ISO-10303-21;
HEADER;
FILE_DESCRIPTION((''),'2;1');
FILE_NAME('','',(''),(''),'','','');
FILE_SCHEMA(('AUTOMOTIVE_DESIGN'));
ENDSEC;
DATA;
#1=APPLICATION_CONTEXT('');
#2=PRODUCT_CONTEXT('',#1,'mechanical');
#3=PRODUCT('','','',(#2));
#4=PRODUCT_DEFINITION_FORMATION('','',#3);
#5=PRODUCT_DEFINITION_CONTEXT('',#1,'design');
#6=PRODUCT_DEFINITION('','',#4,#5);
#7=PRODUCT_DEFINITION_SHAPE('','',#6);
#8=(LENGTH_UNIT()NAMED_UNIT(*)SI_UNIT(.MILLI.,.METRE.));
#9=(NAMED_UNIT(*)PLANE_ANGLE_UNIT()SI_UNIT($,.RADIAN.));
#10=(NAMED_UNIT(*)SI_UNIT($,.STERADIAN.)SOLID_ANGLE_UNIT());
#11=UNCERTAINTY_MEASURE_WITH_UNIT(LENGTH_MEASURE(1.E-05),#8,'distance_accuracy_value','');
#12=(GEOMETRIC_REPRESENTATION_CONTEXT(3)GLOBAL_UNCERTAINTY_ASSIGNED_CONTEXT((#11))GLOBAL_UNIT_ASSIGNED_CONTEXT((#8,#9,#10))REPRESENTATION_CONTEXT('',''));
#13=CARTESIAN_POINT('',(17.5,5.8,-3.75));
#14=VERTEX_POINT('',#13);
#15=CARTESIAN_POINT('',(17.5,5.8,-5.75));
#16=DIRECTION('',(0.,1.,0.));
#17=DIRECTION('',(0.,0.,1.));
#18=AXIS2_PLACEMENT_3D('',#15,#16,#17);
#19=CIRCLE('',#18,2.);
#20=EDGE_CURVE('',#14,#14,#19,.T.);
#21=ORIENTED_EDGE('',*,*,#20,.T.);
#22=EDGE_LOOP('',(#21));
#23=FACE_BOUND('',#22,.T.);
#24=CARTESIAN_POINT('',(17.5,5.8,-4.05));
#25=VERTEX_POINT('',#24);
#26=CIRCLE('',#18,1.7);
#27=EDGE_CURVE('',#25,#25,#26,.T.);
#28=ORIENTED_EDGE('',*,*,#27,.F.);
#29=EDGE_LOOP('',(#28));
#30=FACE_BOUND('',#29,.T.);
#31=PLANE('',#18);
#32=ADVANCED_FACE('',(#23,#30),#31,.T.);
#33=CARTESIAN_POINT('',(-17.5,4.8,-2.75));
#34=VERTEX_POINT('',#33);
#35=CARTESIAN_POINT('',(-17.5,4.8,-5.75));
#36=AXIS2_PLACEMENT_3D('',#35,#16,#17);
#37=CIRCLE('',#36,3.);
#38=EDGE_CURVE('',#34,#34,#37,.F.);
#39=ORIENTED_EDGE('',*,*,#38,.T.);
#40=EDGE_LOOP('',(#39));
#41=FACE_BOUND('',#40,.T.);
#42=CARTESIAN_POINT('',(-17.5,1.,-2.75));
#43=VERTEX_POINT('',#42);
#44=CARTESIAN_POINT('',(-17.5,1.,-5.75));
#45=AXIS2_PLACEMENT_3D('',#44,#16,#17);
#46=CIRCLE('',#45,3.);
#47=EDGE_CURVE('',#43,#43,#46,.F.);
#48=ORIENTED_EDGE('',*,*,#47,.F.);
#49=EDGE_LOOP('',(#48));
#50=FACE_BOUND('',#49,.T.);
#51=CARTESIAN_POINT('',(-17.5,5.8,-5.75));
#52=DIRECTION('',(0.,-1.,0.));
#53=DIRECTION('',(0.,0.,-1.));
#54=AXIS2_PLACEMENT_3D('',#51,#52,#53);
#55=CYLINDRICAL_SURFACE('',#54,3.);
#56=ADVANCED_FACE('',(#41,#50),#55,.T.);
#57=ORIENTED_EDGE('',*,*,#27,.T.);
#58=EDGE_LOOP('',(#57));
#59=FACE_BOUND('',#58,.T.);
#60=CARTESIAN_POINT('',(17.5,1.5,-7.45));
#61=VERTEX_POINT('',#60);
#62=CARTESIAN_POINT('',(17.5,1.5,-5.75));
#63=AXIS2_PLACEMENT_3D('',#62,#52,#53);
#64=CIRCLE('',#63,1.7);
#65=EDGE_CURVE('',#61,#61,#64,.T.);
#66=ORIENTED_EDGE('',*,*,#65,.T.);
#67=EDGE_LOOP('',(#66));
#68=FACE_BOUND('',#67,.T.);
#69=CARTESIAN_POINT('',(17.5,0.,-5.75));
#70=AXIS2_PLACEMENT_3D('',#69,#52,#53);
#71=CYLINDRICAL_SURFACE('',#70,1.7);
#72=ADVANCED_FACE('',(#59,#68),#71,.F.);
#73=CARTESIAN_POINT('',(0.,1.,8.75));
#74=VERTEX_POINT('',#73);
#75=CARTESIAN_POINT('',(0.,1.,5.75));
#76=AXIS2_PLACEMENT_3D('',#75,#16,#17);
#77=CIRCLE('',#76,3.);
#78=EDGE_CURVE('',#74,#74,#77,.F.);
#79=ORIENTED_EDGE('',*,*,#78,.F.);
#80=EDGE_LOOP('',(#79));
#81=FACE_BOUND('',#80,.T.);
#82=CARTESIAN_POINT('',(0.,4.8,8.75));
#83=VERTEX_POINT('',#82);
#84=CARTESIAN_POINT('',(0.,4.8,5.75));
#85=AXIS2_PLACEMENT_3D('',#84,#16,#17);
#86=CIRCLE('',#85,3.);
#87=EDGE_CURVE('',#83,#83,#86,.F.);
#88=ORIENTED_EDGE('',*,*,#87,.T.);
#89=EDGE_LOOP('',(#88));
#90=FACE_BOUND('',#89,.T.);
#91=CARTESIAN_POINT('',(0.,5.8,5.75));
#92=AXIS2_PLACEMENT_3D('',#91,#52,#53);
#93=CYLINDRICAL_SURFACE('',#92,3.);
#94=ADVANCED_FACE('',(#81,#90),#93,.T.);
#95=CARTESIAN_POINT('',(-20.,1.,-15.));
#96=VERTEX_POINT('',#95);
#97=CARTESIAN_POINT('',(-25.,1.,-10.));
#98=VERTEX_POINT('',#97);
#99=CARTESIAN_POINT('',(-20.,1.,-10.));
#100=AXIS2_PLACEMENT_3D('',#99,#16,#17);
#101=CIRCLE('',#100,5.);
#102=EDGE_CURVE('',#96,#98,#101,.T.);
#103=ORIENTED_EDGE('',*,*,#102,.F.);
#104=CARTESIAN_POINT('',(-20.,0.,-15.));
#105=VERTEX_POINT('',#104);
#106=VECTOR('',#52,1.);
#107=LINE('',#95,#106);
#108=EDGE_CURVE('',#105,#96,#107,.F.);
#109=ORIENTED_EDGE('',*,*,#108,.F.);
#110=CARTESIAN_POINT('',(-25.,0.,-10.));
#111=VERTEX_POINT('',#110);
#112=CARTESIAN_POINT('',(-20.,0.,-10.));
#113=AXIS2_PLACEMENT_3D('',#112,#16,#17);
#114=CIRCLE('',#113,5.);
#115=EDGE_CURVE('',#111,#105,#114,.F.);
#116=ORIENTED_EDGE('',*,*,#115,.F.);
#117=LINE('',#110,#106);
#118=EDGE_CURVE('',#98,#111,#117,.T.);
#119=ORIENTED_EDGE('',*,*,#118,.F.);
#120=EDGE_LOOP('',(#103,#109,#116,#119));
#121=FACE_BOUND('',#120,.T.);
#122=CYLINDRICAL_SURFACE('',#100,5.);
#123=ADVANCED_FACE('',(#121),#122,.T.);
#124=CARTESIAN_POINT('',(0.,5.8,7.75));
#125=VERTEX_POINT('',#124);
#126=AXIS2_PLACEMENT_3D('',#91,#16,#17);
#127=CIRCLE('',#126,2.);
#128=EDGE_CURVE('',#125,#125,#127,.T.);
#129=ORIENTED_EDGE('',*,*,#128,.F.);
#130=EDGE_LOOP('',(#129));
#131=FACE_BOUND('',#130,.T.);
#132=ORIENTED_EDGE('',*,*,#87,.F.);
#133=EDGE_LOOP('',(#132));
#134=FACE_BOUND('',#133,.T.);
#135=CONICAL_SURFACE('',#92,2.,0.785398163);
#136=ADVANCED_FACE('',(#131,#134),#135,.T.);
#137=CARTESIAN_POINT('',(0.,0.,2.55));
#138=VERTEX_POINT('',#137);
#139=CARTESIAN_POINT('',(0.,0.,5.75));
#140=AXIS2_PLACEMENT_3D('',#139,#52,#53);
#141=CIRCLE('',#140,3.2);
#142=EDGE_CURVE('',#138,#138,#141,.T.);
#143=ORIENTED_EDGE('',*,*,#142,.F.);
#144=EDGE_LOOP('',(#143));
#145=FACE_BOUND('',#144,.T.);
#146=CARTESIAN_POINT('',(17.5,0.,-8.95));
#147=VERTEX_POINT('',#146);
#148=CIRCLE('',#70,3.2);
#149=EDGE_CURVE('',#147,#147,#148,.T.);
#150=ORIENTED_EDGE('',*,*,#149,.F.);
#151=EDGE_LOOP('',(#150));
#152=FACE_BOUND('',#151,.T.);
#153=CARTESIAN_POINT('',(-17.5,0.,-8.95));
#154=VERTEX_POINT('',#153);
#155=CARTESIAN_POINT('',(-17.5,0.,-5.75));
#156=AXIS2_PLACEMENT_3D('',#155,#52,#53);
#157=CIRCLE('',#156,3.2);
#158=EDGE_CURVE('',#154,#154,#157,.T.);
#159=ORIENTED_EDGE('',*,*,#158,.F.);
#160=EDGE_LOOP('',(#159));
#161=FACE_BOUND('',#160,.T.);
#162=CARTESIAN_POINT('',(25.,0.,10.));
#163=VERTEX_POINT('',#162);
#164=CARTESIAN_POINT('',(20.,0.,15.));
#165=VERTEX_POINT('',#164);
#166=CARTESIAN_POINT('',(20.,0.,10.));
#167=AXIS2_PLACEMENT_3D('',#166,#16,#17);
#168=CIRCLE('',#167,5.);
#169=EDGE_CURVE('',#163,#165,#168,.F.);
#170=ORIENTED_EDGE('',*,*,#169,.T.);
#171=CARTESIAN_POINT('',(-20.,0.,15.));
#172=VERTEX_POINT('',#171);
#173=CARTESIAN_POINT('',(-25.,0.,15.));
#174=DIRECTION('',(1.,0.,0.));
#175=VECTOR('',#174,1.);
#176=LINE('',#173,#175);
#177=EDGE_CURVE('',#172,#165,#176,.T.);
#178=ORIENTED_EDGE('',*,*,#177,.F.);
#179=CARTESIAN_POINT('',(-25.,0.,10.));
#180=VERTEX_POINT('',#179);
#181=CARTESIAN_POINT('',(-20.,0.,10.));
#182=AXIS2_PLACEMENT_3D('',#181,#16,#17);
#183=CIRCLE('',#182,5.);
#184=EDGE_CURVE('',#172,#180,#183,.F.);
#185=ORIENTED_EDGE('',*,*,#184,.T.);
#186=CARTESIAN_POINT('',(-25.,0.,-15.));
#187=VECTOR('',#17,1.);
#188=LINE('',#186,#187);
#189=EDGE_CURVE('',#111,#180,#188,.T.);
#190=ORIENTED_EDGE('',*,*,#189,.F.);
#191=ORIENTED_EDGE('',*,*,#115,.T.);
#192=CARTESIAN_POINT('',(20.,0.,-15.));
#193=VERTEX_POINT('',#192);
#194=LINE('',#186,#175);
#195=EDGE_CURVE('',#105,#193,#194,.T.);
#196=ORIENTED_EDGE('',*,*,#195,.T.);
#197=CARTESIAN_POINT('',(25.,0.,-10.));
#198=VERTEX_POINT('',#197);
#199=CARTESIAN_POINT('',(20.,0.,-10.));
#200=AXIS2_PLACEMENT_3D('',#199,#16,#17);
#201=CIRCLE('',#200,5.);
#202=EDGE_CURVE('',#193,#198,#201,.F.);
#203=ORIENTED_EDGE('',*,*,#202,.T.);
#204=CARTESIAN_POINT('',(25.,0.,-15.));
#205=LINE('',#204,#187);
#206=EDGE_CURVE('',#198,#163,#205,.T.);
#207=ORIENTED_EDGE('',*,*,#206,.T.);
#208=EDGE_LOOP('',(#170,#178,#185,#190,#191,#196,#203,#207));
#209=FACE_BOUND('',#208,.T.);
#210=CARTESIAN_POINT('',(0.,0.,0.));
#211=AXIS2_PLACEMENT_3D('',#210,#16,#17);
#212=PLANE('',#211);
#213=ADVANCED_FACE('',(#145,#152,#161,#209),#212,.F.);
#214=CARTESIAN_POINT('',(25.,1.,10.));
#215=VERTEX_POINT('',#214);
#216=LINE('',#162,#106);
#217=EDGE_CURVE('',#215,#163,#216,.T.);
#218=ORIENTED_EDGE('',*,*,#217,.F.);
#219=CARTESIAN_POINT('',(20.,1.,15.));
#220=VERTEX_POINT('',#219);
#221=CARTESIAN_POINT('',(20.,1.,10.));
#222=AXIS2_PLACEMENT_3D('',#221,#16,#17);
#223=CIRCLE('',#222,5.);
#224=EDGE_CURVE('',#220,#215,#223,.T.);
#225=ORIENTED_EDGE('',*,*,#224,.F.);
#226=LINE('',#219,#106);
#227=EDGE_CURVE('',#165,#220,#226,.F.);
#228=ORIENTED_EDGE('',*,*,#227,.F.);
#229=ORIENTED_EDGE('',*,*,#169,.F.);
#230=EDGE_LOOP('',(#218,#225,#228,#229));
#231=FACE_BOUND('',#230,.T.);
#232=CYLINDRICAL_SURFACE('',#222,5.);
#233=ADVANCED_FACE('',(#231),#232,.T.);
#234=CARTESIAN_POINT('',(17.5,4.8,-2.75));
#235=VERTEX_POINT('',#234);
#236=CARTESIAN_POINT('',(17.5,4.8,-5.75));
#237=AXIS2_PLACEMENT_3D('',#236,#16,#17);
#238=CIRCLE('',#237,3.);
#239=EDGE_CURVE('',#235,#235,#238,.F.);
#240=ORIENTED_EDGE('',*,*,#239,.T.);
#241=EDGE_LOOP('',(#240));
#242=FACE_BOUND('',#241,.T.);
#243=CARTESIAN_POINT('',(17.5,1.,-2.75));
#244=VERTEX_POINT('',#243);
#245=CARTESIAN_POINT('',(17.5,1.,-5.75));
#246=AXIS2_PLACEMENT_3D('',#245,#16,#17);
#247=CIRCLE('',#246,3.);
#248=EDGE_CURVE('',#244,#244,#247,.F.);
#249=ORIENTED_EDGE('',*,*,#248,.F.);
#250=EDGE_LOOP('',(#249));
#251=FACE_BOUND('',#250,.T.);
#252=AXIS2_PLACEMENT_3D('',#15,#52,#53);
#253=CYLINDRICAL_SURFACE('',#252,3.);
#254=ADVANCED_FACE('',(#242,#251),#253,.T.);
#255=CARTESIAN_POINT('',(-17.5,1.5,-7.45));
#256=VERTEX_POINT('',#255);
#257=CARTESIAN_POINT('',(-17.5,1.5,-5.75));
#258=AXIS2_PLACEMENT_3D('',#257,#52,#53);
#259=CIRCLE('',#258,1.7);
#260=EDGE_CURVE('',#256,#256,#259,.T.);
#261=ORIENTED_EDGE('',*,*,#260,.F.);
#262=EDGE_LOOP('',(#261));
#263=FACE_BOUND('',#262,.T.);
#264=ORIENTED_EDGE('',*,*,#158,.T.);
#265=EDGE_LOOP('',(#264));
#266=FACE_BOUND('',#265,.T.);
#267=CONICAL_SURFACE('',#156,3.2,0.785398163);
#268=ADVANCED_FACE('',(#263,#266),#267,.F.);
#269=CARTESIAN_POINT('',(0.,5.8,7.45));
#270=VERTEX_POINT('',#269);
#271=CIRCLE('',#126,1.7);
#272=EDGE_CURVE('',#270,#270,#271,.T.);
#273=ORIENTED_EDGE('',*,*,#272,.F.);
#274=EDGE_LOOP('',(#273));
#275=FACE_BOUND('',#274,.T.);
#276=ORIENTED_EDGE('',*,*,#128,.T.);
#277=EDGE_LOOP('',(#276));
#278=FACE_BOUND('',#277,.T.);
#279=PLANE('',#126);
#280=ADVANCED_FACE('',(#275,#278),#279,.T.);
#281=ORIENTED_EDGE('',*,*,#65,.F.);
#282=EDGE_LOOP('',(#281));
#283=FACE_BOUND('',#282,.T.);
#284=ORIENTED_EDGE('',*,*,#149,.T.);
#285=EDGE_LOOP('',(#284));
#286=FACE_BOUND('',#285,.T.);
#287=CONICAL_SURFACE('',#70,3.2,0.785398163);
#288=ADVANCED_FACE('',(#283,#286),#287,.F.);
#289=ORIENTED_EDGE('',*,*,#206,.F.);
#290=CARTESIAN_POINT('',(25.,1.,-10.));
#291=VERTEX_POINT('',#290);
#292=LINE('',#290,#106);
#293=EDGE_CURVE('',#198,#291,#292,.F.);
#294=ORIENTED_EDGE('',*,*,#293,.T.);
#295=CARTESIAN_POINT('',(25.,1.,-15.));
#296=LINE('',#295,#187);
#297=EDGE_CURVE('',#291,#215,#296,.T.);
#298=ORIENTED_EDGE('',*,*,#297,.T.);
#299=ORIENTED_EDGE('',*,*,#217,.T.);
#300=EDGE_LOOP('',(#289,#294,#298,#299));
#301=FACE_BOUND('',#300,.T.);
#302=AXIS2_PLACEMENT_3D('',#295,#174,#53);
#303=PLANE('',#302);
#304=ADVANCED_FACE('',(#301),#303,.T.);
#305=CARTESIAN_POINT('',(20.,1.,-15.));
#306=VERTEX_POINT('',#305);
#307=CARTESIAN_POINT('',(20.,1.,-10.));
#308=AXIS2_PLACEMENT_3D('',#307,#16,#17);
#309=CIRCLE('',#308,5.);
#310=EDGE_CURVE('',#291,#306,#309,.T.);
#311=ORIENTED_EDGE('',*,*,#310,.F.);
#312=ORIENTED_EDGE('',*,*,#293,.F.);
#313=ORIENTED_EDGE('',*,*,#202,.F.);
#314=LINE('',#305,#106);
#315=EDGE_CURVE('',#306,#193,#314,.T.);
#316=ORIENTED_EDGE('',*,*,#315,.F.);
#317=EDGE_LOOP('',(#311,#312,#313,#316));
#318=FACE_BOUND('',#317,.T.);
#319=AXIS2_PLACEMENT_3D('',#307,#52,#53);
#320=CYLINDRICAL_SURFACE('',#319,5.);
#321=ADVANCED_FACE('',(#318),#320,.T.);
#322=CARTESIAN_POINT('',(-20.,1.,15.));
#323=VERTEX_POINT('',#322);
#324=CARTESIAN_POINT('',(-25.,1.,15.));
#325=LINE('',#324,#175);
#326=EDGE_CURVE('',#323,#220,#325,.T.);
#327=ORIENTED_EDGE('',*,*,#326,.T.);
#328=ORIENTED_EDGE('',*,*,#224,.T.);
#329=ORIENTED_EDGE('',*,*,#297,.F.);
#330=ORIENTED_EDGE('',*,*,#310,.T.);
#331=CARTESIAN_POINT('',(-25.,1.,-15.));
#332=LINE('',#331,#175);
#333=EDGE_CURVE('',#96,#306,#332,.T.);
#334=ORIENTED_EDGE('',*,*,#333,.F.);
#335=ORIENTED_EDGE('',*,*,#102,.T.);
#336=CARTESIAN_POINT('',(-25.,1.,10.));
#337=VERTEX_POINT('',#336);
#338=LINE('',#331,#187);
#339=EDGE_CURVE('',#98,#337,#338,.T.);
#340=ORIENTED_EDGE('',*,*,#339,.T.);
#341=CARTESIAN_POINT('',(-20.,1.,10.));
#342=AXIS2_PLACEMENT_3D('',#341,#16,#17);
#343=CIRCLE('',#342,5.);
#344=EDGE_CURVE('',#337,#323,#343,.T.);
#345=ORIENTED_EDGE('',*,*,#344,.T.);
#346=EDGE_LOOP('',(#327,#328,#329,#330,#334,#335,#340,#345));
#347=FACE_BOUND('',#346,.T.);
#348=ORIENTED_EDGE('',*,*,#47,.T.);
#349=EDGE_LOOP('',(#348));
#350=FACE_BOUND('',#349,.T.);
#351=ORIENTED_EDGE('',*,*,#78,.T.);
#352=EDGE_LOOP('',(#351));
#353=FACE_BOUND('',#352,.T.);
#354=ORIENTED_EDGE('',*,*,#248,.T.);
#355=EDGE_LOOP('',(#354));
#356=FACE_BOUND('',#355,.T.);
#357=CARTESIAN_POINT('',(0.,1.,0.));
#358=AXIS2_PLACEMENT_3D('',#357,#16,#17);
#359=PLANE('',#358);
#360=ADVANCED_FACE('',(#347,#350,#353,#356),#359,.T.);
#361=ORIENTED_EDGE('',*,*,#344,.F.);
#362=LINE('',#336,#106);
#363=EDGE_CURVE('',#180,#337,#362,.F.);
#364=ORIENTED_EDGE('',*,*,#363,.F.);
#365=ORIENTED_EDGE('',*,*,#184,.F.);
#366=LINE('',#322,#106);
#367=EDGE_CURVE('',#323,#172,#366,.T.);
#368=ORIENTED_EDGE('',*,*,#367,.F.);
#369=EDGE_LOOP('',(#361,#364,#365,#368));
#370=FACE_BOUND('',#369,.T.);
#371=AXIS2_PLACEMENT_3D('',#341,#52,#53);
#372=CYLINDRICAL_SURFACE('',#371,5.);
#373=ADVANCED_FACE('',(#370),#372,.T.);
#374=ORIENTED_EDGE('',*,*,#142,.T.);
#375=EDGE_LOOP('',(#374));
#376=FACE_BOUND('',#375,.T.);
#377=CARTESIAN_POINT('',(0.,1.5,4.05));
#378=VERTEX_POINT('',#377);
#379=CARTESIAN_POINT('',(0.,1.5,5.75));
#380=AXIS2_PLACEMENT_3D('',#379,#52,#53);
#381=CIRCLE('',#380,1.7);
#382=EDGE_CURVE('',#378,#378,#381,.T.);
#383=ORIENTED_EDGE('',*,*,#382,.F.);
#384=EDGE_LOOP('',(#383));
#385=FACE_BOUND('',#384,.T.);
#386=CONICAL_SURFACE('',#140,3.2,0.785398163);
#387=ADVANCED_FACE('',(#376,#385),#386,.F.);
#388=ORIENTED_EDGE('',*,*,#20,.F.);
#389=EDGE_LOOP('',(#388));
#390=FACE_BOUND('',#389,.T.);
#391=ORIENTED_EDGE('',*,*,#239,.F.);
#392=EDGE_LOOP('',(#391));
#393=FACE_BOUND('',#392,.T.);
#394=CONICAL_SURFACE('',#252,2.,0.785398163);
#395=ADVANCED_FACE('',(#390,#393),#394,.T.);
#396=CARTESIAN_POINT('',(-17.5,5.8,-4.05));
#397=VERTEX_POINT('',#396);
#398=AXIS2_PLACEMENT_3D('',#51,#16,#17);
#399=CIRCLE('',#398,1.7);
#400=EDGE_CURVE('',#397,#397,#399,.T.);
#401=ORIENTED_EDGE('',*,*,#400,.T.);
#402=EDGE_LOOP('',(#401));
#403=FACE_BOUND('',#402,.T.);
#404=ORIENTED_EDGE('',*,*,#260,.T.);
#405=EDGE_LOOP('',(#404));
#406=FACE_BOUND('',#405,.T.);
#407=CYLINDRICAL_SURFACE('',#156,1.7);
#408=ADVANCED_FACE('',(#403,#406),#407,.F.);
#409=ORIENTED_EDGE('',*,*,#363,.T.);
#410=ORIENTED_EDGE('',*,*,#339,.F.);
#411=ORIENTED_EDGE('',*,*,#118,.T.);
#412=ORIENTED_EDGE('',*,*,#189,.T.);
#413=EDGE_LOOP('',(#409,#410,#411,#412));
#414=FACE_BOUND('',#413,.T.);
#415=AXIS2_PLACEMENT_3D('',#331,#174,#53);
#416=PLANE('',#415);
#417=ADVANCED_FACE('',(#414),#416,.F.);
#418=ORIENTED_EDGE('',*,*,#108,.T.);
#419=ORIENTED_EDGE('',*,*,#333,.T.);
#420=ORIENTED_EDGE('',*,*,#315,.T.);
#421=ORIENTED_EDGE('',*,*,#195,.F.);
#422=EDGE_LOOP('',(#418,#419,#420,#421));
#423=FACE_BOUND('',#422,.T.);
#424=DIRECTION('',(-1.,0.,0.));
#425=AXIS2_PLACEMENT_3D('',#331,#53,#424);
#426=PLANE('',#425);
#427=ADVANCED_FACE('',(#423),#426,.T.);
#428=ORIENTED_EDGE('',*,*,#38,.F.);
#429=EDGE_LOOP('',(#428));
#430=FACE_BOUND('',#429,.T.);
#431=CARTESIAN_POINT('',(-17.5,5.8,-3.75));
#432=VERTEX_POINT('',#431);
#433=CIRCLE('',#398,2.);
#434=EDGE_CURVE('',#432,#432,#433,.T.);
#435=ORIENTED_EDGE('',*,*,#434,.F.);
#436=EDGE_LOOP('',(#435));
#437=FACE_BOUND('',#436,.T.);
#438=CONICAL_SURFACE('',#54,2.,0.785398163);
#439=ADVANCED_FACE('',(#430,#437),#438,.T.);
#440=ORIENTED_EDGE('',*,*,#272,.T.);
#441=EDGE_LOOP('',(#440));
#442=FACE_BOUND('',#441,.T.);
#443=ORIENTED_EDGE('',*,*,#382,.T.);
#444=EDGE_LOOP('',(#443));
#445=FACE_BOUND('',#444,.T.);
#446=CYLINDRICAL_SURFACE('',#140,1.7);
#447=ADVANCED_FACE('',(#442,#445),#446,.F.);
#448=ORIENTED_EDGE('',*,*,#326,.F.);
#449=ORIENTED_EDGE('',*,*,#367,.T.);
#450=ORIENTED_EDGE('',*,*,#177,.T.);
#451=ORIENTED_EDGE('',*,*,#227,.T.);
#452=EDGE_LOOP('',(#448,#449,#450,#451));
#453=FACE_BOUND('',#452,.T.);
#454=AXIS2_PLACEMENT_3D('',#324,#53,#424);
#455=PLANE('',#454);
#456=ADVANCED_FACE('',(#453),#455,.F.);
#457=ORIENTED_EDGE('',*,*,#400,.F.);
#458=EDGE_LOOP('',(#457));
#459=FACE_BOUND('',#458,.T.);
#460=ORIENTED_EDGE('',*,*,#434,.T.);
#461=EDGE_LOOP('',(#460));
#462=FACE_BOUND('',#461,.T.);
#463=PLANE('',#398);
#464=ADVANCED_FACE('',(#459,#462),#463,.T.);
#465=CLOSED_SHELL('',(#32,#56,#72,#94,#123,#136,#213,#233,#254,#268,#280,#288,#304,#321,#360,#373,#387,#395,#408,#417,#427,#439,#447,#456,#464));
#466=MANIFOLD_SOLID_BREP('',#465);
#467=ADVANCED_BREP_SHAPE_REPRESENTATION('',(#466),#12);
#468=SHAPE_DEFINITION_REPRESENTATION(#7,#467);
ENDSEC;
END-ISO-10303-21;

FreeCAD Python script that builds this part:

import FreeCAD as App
import Part
import Sketcher

V = App.Vector


def edges_at(feature, points):
    """Names of the edges that pass closest to the given points."""
    edges = feature.Shape.Edges
    near = lambda p: min(range(len(edges)), key=lambda i: edges[i].distToShape(Part.Vertex(*p))[0])
    return sorted({f"Edge{near(p) + 1}" for p in points})


def add_polygon(sketch, points):
    """Adds a closed chain of lines whose ends are joined by coincident constraints."""
    first, n = sketch.GeometryCount, len(points)
    for a, b in zip(points, points[1:] + points[:1]):
        sketch.addGeometry(Part.LineSegment(App.Vector(*a, 0), App.Vector(*b, 0)), False)
    for i in range(n):
        sketch.addConstraint(Sketcher.Constraint("Coincident", first + i, 2, first + (i + 1) % n, 1))

doc = App.newDocument("Part")
body = doc.addObject("PartDesign::Body", "Body")

# Sketch on XZ plane
sketch1 = body.newObject("Sketcher::SketchObject", "Sketch")
sketch1.AttachmentSupport = (doc.getObject("XZ_Plane"), [""])
sketch1.MapMode = "FlatFace"
add_polygon(sketch1, [(-25, -15), (-25, 15), (25, 15), (25, -15)])  # lines 0-3
sketch1.addConstraint([
    Sketcher.Constraint("Vertical", 0),
    Sketcher.Constraint("Horizontal", 1),
    Sketcher.Constraint("Vertical", 2),
    Sketcher.Constraint("Horizontal", 3),
    Sketcher.Constraint("Symmetric", 0, 2, 2, 2, -1, 1),
    Sketcher.Constraint("DistanceX", 1, 1, 1, 2, 50.0),
    Sketcher.Constraint("DistanceY", 0, 1, 0, 2, 30.0),
])
pad1 = body.newObject("PartDesign::Pad", "Pad")
pad1.Profile = sketch1
pad1.Length = 1
pad1.Reversed = True

# Sketch on XZ plane
sketch2 = body.newObject("Sketcher::SketchObject", "Sketch001")
sketch2.AttachmentSupport = (doc.getObject("XZ_Plane"), [""])
sketch2.MapMode = "FlatFace"
sketch2.addGeometry([
    Part.Circle(V(-17.5, -5.8, 0), V(0, 0, 1), 3),
    Part.Circle(V(17.5, -5.8, 0), V(0, 0, 1), 3),
    Part.Circle(V(0, 5.8, 0), V(0, 0, 1), 3),
], False)
sketch2.addConstraint([
    Sketcher.Constraint("Equal", 0, 1),
    Sketcher.Constraint("Equal", 1, 2),
    Sketcher.Constraint("Symmetric", 0, 3, 1, 3, -2),
    Sketcher.Constraint("PointOnObject", 2, 3, -2),
    Sketcher.Constraint("Diameter", 0, 6.0),
    Sketcher.Constraint("DistanceX", 0, 3, 1, 3, 35.0),
    Sketcher.Constraint("DistanceY", 0, 3, 2, 3, 11.5),
    Sketcher.Constraint("DistanceY", 0, 3, -1, 1, 5.75),
])
pad2 = body.newObject("PartDesign::Pad", "Pad001")
pad2.Profile = sketch2
pad2.Length = 5.8
pad2.Reversed = True

# Sketch on XZ plane
sketch3 = body.newObject("Sketcher::SketchObject", "Sketch002")
sketch3.AttachmentSupport = (doc.getObject("XZ_Plane"), [""])
sketch3.MapMode = "FlatFace"
sketch3.addGeometry([
    Part.Circle(V(17.5, -5.8, 0), V(0, 0, 1), 1.7),
    Part.Circle(V(0, 5.8, 0), V(0, 0, 1), 1.7),
    Part.Circle(V(-17.5, -5.8, 0), V(0, 0, 1), 1.7),
], False)
sketch3.addConstraint([
    Sketcher.Constraint("Equal", 0, 1),
    Sketcher.Constraint("Equal", 1, 2),
    Sketcher.Constraint("Symmetric", 0, 3, 2, 3, -2),
    Sketcher.Constraint("PointOnObject", 1, 3, -2),
    Sketcher.Constraint("Diameter", 0, 3.4),
    Sketcher.Constraint("DistanceX", 2, 3, 0, 3, 35.0),
    Sketcher.Constraint("DistanceY", 0, 3, 1, 3, 11.5),
    Sketcher.Constraint("DistanceY", 0, 3, -1, 1, 5.75),
])
doc.recompute()
hole = body.newObject("PartDesign::Hole", "Hole")
hole.Profile = sketch3
hole.ThreadType = "None"
hole.Diameter = 3.4
hole.DepthType = "Dimension"
hole.Depth = 7.5
hole.DrillPoint = "Angled"
hole.DrillPointAngle = 118
hole.HoleCutType = "Countersink"
hole.HoleCutDiameter = 6.4
hole.HoleCutCountersinkAngle = 90
doc.recompute()

chamfer = body.newObject("PartDesign::Chamfer", "Chamfer")
chamfer.Base = (hole, edges_at(hole, [(-17.5, 5.8, -8.75), (17.5, 5.8, -8.75), (0, 5.8, 2.75)]))
chamfer.Size = 1
doc.recompute()

fillet = body.newObject("PartDesign::Fillet", "Fillet")
fillet.Base = (chamfer, edges_at(chamfer, [
    (-25, 0.5, -15),
    (25, 0.5, -15),
    (25, 0.5, 15),
    (-25, 0.5, 15),
]))
fillet.Radius = 5

doc.recompute()
